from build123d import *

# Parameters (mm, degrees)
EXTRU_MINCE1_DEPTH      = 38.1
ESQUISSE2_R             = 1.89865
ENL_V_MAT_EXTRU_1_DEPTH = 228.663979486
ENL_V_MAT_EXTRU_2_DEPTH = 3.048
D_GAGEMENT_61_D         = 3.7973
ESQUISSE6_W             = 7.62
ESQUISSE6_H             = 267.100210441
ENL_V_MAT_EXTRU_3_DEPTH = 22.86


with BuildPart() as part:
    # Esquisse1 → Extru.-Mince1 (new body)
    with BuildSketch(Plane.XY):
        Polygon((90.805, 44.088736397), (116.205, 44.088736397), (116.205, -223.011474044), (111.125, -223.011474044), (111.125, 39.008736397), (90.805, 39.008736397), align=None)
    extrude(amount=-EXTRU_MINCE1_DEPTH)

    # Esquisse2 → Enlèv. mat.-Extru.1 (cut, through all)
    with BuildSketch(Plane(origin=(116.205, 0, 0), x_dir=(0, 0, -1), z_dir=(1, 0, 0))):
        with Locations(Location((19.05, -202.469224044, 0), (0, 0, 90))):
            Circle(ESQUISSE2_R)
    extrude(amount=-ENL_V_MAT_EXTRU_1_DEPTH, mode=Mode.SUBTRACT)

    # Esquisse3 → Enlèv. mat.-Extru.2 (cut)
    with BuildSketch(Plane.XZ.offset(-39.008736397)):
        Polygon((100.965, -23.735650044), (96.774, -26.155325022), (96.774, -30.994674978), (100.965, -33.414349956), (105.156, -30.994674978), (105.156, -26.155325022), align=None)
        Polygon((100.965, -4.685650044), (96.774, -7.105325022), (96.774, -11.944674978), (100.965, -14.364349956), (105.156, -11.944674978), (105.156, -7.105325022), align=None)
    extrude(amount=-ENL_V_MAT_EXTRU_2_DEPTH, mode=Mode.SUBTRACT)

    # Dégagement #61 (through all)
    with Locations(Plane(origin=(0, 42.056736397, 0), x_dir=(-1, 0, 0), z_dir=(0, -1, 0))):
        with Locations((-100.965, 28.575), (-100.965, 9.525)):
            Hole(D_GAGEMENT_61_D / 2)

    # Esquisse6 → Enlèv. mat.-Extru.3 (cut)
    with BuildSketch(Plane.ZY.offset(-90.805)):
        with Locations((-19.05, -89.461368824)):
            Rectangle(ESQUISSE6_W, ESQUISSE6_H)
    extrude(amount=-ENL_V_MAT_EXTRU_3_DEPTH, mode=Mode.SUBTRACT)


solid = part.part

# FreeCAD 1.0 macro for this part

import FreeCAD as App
import Part
import Sketcher
from FreeCAD import Vector
Q = App.Units.Quantity

doc = App.newDocument("Part")
body = doc.addObject("PartDesign::Body", "Body")

# Sketch on XY plane
sketch1 = body.newObject("Sketcher::SketchObject", "Sketch")
sketch1.AttachmentSupport = (doc.getObject("XY_Plane"), [""])
sketch1.MapMode = "FlatFace"
sketch1.addGeometry([
    Part.LineSegment(Vector(116, 44, 0), Vector(91, 44, 0)),  # 0
    Part.LineSegment(Vector(91, 44, 0), Vector(91, 39, 0)),  # 1
    Part.LineSegment(Vector(91, 39, 0), Vector(111, 39, 0)),  # 2
    Part.LineSegment(Vector(111, 39, 0), Vector(111, -223, 0)),  # 3
    Part.LineSegment(Vector(111, -223, 0), Vector(116, -223, 0)),  # 4
    Part.LineSegment(Vector(116, -223, 0), Vector(116, 44, 0)),  # 5
], False)
sketch1.addConstraint([
    Sketcher.Constraint("Coincident", 0, 2, 1, 1),
    Sketcher.Constraint("Coincident", 1, 2, 2, 1),
    Sketcher.Constraint("Coincident", 2, 2, 3, 1),
    Sketcher.Constraint("Coincident", 3, 2, 4, 1),
    Sketcher.Constraint("Coincident", 4, 2, 5, 1),
    Sketcher.Constraint("Coincident", 5, 2, 0, 1),
    Sketcher.Constraint("Horizontal", 0),
    Sketcher.Constraint("Vertical", 1),
    Sketcher.Constraint("Horizontal", 2),
    Sketcher.Constraint("Vertical", 3),
    Sketcher.Constraint("Horizontal", 4),
    Sketcher.Constraint("Vertical", 5),
    Sketcher.Constraint("Equal", 4, 1),
    Sketcher.Constraint("DistanceX", 0, 2, 0, 1, Q("1 in")),
    Sketcher.Constraint("DistanceX", 2, 1, 2, 2, Q("0.8 in")),
    Sketcher.Constraint("DistanceX", -1, 1, 0, 2, Q("3.575 in")),
    Sketcher.Constraint("DistanceY", 3, 2, 3, 1, Q("262.02021 mm")),
    Sketcher.Constraint("DistanceY", -1, 1, 0, 2, Q("44.088736 mm")),
])
pad1 = body.newObject("PartDesign::Pad", "Pad")
pad1.Profile = sketch1
pad1.Length = Q("1.5 in")
pad1.Reversed = True

# Sketch on YZ plane
sketch2 = body.newObject("Sketcher::SketchObject", "Sketch001")
sketch2.AttachmentSupport = (doc.getObject("YZ_Plane"), [""])
sketch2.MapMode = "FlatFace"
sketch2.AttachmentOffset = App.Placement(Vector(0, 0, 4.575 * 25.4), App.Rotation())
sketch2.addGeometry(Part.Circle(Vector(-202.5, -19.1, 0), Vector(0, 0, 1), 1.9), False)
sketch2.addConstraint([
    Sketcher.Constraint("Diameter", 0, Q("0.1495 in")),
    Sketcher.Constraint("DistanceY", 0, 3, -1, 1, Q("0.75 in")),
    Sketcher.Constraint("DistanceX", 0, 3, -1, 1, Q("202.469224 mm")),
])
pocket1 = body.newObject("PartDesign::Pocket", "Pocket")
pocket1.Profile = sketch2
pocket1.Type = "ThroughAll"

# Sketch on XZ plane
sketch3 = body.newObject("Sketcher::SketchObject", "Sketch002")
sketch3.AttachmentSupport = (doc.getObject("XZ_Plane"), [""])
sketch3.MapMode = "FlatFace"
sketch3.AttachmentOffset = App.Placement(Vector(0, 0, -39.008736), App.Rotation())
sketch3.addGeometry([
    Part.LineSegment(Vector(101, -23.7, 0), Vector(96.8, -26.2, 0)),  # 0
    Part.LineSegment(Vector(96.8, -26.2, 0), Vector(96.8, -31, 0)),  # 1
    Part.LineSegment(Vector(96.8, -31, 0), Vector(101, -33.4, 0)),  # 2
    Part.LineSegment(Vector(101, -33.4, 0), Vector(105.2, -31, 0)),  # 3
    Part.LineSegment(Vector(105.2, -31, 0), Vector(105.2, -26.2, 0)),  # 4
    Part.LineSegment(Vector(105.2, -26.2, 0), Vector(101, -23.7, 0)),  # 5
    Part.LineSegment(Vector(101, -4.7, 0), Vector(96.8, -7.1, 0)),  # 6
    Part.LineSegment(Vector(96.8, -7.1, 0), Vector(96.8, -11.9, 0)),  # 7
    Part.LineSegment(Vector(96.8, -11.9, 0), Vector(101, -14.4, 0)),  # 8
    Part.LineSegment(Vector(101, -14.4, 0), Vector(105.2, -11.9, 0)),  # 9
    Part.LineSegment(Vector(105.2, -11.9, 0), Vector(105.2, -7.1, 0)),  # 10
    Part.LineSegment(Vector(105.2, -7.1, 0), Vector(101, -4.7, 0)),  # 11
], False)
sketch3.addConstraint([
    Sketcher.Constraint("Coincident", 0, 2, 1, 1),
    Sketcher.Constraint("Coincident", 1, 2, 2, 1),
    Sketcher.Constraint("Coincident", 2, 2, 3, 1),
    Sketcher.Constraint("Coincident", 3, 2, 4, 1),
    Sketcher.Constraint("Coincident", 4, 2, 5, 1),
    Sketcher.Constraint("Coincident", 5, 2, 0, 1),
    Sketcher.Constraint("Coincident", 6, 2, 7, 1),
    Sketcher.Constraint("Coincident", 7, 2, 8, 1),
    Sketcher.Constraint("Coincident", 8, 2, 9, 1),
    Sketcher.Constraint("Coincident", 9, 2, 10, 1),
    Sketcher.Constraint("Coincident", 10, 2, 11, 1),
    Sketcher.Constraint("Coincident", 11, 2, 6, 1),
    Sketcher.Constraint("Vertical", 1),
    Sketcher.Constraint("Vertical", 4),
    Sketcher.Constraint("Vertical", 7),
    Sketcher.Constraint("Vertical", 10),
    Sketcher.Constraint("Parallel", 0, 3),
    Sketcher.Constraint("Parallel", 2, 5),
    Sketcher.Constraint("Parallel", 3, 6),
    Sketcher.Constraint("Parallel", 5, 8),
    Sketcher.Constraint("Parallel", 6, 9),
    Sketcher.Constraint("Parallel", 8, 11),
    Sketcher.Constraint("Horizontal", 1, 2, 3, 2),
    Sketcher.Constraint("Horizontal", 0, 2, 4, 2),
    Sketcher.Constraint("Horizontal", 7, 2, 9, 2),
    Sketcher.Constraint("Horizontal", 6, 2, 10, 2),
    Sketcher.Constraint("Vertical", 2, 2, 5, 2),
    Sketcher.Constraint("Vertical", 1, 2, 6, 2),
    Sketcher.Constraint("Vertical", 5, 2, 8, 2),
    Sketcher.Constraint("Equal", 4, 7),
    Sketcher.Constraint("Angle", 0, Q("-150 deg")),
    Sketcher.Constraint("DistanceX", -1, 1, 0, 2, Q("3.81 in")),
    Sketcher.Constraint("DistanceX", -1, 1, 3, 2, Q("4.14 in")),
    Sketcher.Constraint("DistanceY", 0, 2, 6, 2, Q("0.75 in")),
    Sketcher.Constraint("DistanceY", 1, 2, 1, 1, Q("4.83935 mm")),
    Sketcher.Constraint("DistanceY", 2, 2, -1, 1, Q("33.41435 mm")),
])
pocket2 = body.newObject("PartDesign::Pocket", "Pocket001")
pocket2.Profile = sketch3
pocket2.Length = Q("0.12 in")

# Sketch on XZ plane
sketch4 = body.newObject("Sketcher::SketchObject", "Sketch003")
sketch4.AttachmentSupport = (doc.getObject("XZ_Plane"), [""])
sketch4.MapMode = "FlatFace"
sketch4.AttachmentOffset = App.Placement(Vector(0, 0, -42.056736), App.Rotation())
sketch4.addGeometry([
    Part.Circle(Vector(101, -28.6, 0), Vector(0, 0, 1), 1.9),
    Part.Circle(Vector(101, -9.5, 0), Vector(0, 0, 1), 1.9),
], False)
sketch4.addConstraint([
    Sketcher.Constraint("Equal", 0, 1),
    Sketcher.Constraint("Vertical", 0, 3, 1, 3),
    Sketcher.Constraint("Diameter", 0, Q("0.1495 in")),
    Sketcher.Constraint("DistanceY", 0, 3, 1, 3, Q("0.75 in")),
    Sketcher.Constraint("DistanceX", -1, 1, 0, 3, Q("3.975 in")),
    Sketcher.Constraint("DistanceY", 0, 3, -1, 1, Q("1.125 in")),
])
doc.recompute()
hole = body.newObject("PartDesign::Hole", "Hole")
hole.Profile = sketch4
hole.ThreadType = "None"
hole.Diameter = Q("0.1495 in")
hole.DepthType = "ThroughAll"

# Sketch on YZ plane
sketch5 = body.newObject("Sketcher::SketchObject", "Sketch004")
sketch5.AttachmentSupport = (doc.getObject("YZ_Plane"), [""])
sketch5.MapMode = "FlatFace"
sketch5.AttachmentOffset = App.Placement(Vector(0, 0, 3.575 * 25.4), App.Rotation())
sketch5.addGeometry([
    Part.LineSegment(Vector(44, -23, 0), Vector(-223, -23, 0)),
    Part.LineSegment(Vector(-223, -23, 0), Vector(-223, -15, 0)),
    Part.LineSegment(Vector(-223, -15, 0), Vector(44, -15, 0)),
    Part.LineSegment(Vector(44, -15, 0), Vector(44, -23, 0)),
], False)
sketch5.addConstraint([
    Sketcher.Constraint("Coincident", 0, 2, 1, 1),
    Sketcher.Constraint("Coincident", 1, 2, 2, 1),
    Sketcher.Constraint("Coincident", 2, 2, 3, 1),
    Sketcher.Constraint("Coincident", 3, 2, 0, 1),
    Sketcher.Constraint("Horizontal", 0),
    Sketcher.Constraint("Vertical", 1),
    Sketcher.Constraint("Horizontal", 2),
    Sketcher.Constraint("Vertical", 3),
    Sketcher.Constraint("DistanceY", 1, 1, 1, 2, Q("0.3 in")),
    Sketcher.Constraint("DistanceY", 0, 2, -1, 1, Q("0.9 in")),
    Sketcher.Constraint("DistanceX", 0, 2, 0, 1, Q("267.10021 mm")),
    Sketcher.Constraint("DistanceX", 0, 2, -1, 1, Q("223.011474 mm")),
])
pocket3 = body.newObject("PartDesign::Pocket", "Pocket002")
pocket3.Profile = sketch5
pocket3.Length = Q("0.9 in")
pocket3.Reversed = True

doc.recompute()
